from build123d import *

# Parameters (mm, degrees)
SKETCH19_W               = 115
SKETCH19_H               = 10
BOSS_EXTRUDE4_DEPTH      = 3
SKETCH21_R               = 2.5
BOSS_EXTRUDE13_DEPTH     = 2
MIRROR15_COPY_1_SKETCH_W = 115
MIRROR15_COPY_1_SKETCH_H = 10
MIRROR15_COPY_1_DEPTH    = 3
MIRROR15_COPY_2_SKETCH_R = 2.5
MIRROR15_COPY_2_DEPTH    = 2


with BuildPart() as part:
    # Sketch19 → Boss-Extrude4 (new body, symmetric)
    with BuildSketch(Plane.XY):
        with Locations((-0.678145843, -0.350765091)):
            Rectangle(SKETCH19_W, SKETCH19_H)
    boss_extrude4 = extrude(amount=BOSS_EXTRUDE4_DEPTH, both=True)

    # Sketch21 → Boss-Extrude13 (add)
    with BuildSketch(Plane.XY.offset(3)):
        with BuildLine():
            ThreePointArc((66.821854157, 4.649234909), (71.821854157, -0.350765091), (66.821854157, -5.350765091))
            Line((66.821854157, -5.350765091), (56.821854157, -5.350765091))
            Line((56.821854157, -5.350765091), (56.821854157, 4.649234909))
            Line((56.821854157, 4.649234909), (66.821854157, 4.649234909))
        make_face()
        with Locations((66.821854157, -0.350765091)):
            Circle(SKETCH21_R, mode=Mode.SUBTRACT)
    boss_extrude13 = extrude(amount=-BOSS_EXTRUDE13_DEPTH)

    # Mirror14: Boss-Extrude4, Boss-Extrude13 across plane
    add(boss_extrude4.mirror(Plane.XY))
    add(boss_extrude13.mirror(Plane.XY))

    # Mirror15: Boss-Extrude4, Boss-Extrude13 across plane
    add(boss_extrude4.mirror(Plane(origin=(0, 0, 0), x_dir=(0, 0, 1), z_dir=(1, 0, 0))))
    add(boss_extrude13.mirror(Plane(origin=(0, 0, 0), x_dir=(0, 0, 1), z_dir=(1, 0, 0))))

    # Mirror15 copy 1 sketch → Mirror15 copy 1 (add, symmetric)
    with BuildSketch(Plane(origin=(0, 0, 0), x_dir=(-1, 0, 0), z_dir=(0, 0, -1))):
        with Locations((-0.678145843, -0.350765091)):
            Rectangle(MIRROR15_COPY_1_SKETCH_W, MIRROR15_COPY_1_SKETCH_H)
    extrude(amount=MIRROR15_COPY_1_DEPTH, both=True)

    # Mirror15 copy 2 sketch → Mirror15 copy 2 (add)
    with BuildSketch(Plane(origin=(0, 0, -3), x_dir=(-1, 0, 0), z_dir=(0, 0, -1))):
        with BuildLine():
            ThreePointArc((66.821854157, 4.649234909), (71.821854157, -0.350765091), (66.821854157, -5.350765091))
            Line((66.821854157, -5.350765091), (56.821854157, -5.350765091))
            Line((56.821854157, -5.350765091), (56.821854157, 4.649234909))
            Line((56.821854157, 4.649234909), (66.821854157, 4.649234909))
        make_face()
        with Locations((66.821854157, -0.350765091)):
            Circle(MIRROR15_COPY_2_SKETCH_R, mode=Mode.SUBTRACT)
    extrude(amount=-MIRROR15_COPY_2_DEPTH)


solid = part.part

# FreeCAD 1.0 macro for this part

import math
import FreeCAD as App
import Part
import Sketcher
Q = App.Units.Quantity


def add_polygon(sketch, points):
    """Adds a closed chain of lines whose ends are joined by coincident constraints."""
    first, n = sketch.GeometryCount, len(points)
    for a, b in zip(points, points[1:] + points[:1]):
        sketch.addGeometry(Part.LineSegment(App.Vector(*a, 0), App.Vector(*b, 0)), False)
    for i in range(n):
        sketch.addConstraint(Sketcher.Constraint("Coincident", first + i, 2, first + (i + 1) % n, 1))

doc = App.newDocument("Part")
params = doc.addObject("Spreadsheet::Sheet", "Params")
for row, (alias, value) in enumerate([
    ("sketch1_width", "115 mm"),
    ("sketch1_height", "10 mm"),
    ("pad1_length", "6 mm"),
    ("sketch2_diameter", "5 mm"),
    ("sketch2_radius", "5 mm"),
    ("pad2_length", "2 mm"),
    ("sketch3_width", "115 mm"),
    ("sketch3_height", "10 mm"),
    ("pad3_length", "6 mm"),
    ("sketch4_diameter", "5 mm"),
    ("sketch4_radius", "5 mm"),
    ("pad4_length", "2 mm"),
], start=1):
    params.set(f"A{row}", alias)
    params.set(f"B{row}", "=" + value)
    params.setAlias(f"B{row}", alias)

body = doc.addObject("PartDesign::Body", "Body")

# Sketch on XY plane
sketch1 = body.newObject("Sketcher::SketchObject", "Sketch")
sketch1.AttachmentSupport = (doc.getObject("XY_Plane"), [""])
sketch1.MapMode = "FlatFace"
add_polygon(sketch1, [(-58.178146, 4.649235), (-58.178146, -5.350765), (56.821854, -5.350765), (56.821854, 4.649235)])  # lines 0-3
sketch1.addConstraint(Sketcher.Constraint("Vertical", 0))
sketch1.addConstraint(Sketcher.Constraint("Horizontal", 1))
sketch1.addConstraint(Sketcher.Constraint("Vertical", 2))
sketch1.addConstraint(Sketcher.Constraint("Horizontal", 3))
sketch1.addConstraint(Sketcher.Constraint("DistanceX", 1, 1, 1, 2, Q("115 mm")))
sketch1.addConstraint(Sketcher.Constraint("DistanceY", 0, 2, 0, 1, Q("10 mm")))
sketch1.addConstraint(Sketcher.Constraint("DistanceX", 0, 2, -1, 1, Q("58.178146 mm")))
sketch1.addConstraint(Sketcher.Constraint("DistanceY", 0, 2, -1, 1, Q("5.350765 mm")))
sketch1.setExpression("Constraints[8]", "Params.sketch1_width")
sketch1.setExpression("Constraints[9]", "Params.sketch1_height")
pad1 = body.newObject("PartDesign::Pad", "Pad")
pad1.Profile = sketch1
pad1.setExpression("Length", "Params.pad1_length")
pad1.Midplane = True

# Sketch on XY plane
sketch2 = body.newObject("Sketcher::SketchObject", "Sketch001")
sketch2.AttachmentSupport = (doc.getObject("XY_Plane"), [""])
sketch2.MapMode = "FlatFace"
sketch2.AttachmentOffset = App.Placement(App.Vector(0, 0, 3), App.Rotation())
sketch2.addGeometry(Part.ArcOfCircle(Part.Circle(App.Vector(66.821854, -0.350765, 0), App.Vector(0, 0, 1), 5), math.radians(-90), math.radians(90)), False)
sketch2.addGeometry(Part.LineSegment(App.Vector(66.821854, 4.649235, 0), App.Vector(56.821854, 4.649235, 0)), False)
sketch2.addGeometry(Part.LineSegment(App.Vector(56.821854, 4.649235, 0), App.Vector(56.821854, -5.350765, 0)), False)
sketch2.addGeometry(Part.LineSegment(App.Vector(56.821854, -5.350765, 0), App.Vector(66.821854, -5.350765, 0)), False)
sketch2.addGeometry(Part.Circle(App.Vector(66.821854, -0.350765, 0), App.Vector(0, 0, 1), 2.5), False)
sketch2.addConstraint(Sketcher.Constraint("Tangent", 0, 2, 1, 1))
sketch2.addConstraint(Sketcher.Constraint("Coincident", 1, 2, 2, 1))
sketch2.addConstraint(Sketcher.Constraint("Coincident", 2, 2, 3, 1))
sketch2.addConstraint(Sketcher.Constraint("Tangent", 3, 2, 0, 1))
sketch2.addConstraint(Sketcher.Constraint("Horizontal", 1))
sketch2.addConstraint(Sketcher.Constraint("Vertical", 2))
sketch2.addConstraint(Sketcher.Constraint("Horizontal", 3))
sketch2.addConstraint(Sketcher.Constraint("Coincident", 4, 3, 0, 3))
sketch2.addConstraint(Sketcher.Constraint("Equal", 3, 2))
sketch2.addConstraint(Sketcher.Constraint("Diameter", 4, Q("5 mm")))
sketch2.addConstraint(Sketcher.Constraint("Radius", 0, Q("5 mm")))
sketch2.addConstraint(Sketcher.Constraint("DistanceX", -1, 1, 0, 3, Q("66.821854 mm")))
sketch2.addConstraint(Sketcher.Constraint("DistanceY", 0, 3, -1, 1, Q("0.350765 mm")))
sketch2.setExpression("Constraints[9]", "Params.sketch2_diameter")
sketch2.setExpression("Constraints[10]", "Params.sketch2_radius")
pad2 = body.newObject("PartDesign::Pad", "Pad001")
pad2.Profile = sketch2
pad2.setExpression("Length", "Params.pad2_length")
pad2.Reversed = True
doc.recompute()

mirrored = body.newObject("PartDesign::Mirrored", "Mirrored")
mirrored.Originals = [pad1, pad2]
mirrored.MirrorPlane = (doc.getObject("XY_Plane"), [""])
body.Tip = mirrored
doc.recompute()

mirrored2 = body.newObject("PartDesign::Mirrored", "Mirrored001")
mirrored2.Originals = [pad1, pad2]
mirrored2.MirrorPlane = (doc.getObject("YZ_Plane"), [""])
body.Tip = mirrored2

# Sketch on XY plane
sketch3 = body.newObject("Sketcher::SketchObject", "Sketch002")
sketch3.AttachmentSupport = (doc.getObject("XY_Plane"), [""])
sketch3.MapMode = "FlatFace"
add_polygon(sketch3, [(58.178146, 4.649235), (58.178146, -5.350765), (-56.821854, -5.350765), (-56.821854, 4.649235)])  # lines 0-3
sketch3.addConstraint(Sketcher.Constraint("Vertical", 0))
sketch3.addConstraint(Sketcher.Constraint("Horizontal", 1))
sketch3.addConstraint(Sketcher.Constraint("Vertical", 2))
sketch3.addConstraint(Sketcher.Constraint("Horizontal", 3))
sketch3.addConstraint(Sketcher.Constraint("DistanceX", 1, 2, 1, 1, Q("115 mm")))
sketch3.addConstraint(Sketcher.Constraint("DistanceY", 0, 2, 0, 1, Q("10 mm")))
sketch3.addConstraint(Sketcher.Constraint("DistanceX", -1, 1, 0, 2, Q("58.178146 mm")))
sketch3.addConstraint(Sketcher.Constraint("DistanceY", 0, 2, -1, 1, Q("5.350765 mm")))
sketch3.setExpression("Constraints[8]", "Params.sketch3_width")
sketch3.setExpression("Constraints[9]", "Params.sketch3_height")
pad3 = body.newObject("PartDesign::Pad", "Pad002")
pad3.Profile = sketch3
pad3.setExpression("Length", "Params.pad3_length")
pad3.Midplane = True

# Sketch on XY plane
sketch4 = body.newObject("Sketcher::SketchObject", "Sketch003")
sketch4.AttachmentSupport = (doc.getObject("XY_Plane"), [""])
sketch4.MapMode = "FlatFace"
sketch4.AttachmentOffset = App.Placement(App.Vector(0, 0, -3), App.Rotation())
sketch4.addGeometry(Part.ArcOfCircle(Part.Circle(App.Vector(-66.821854, -0.350765, 0), App.Vector(0, 0, 1), 5), math.radians(90), math.radians(270)), False)
sketch4.addGeometry(Part.LineSegment(App.Vector(-66.821854, 4.649235, 0), App.Vector(-56.821854, 4.649235, 0)), False)
sketch4.addGeometry(Part.LineSegment(App.Vector(-56.821854, 4.649235, 0), App.Vector(-56.821854, -5.350765, 0)), False)
sketch4.addGeometry(Part.LineSegment(App.Vector(-56.821854, -5.350765, 0), App.Vector(-66.821854, -5.350765, 0)), False)
sketch4.addGeometry(Part.Circle(App.Vector(-66.821854, -0.350765, 0), App.Vector(0, 0, 1), 2.5), False)
sketch4.addConstraint(Sketcher.Constraint("Tangent", 0, 1, 1, 1))
sketch4.addConstraint(Sketcher.Constraint("Coincident", 1, 2, 2, 1))
sketch4.addConstraint(Sketcher.Constraint("Coincident", 2, 2, 3, 1))
sketch4.addConstraint(Sketcher.Constraint("Tangent", 3, 2, 0, 2))
sketch4.addConstraint(Sketcher.Constraint("Horizontal", 1))
sketch4.addConstraint(Sketcher.Constraint("Vertical", 2))
sketch4.addConstraint(Sketcher.Constraint("Horizontal", 3))
sketch4.addConstraint(Sketcher.Constraint("Coincident", 4, 3, 0, 3))
sketch4.addConstraint(Sketcher.Constraint("Equal", 3, 2))
sketch4.addConstraint(Sketcher.Constraint("Diameter", 4, Q("5 mm")))
sketch4.addConstraint(Sketcher.Constraint("Radius", 0, Q("5 mm")))
sketch4.addConstraint(Sketcher.Constraint("DistanceX", 0, 3, -1, 1, Q("66.821854 mm")))
sketch4.addConstraint(Sketcher.Constraint("DistanceY", 0, 3, -1, 1, Q("0.350765 mm")))
sketch4.setExpression("Constraints[9]", "Params.sketch4_diameter")
sketch4.setExpression("Constraints[10]", "Params.sketch4_radius")
pad4 = body.newObject("PartDesign::Pad", "Pad003")
pad4.Profile = sketch4
pad4.setExpression("Length", "Params.pad4_length")

doc.recompute()
